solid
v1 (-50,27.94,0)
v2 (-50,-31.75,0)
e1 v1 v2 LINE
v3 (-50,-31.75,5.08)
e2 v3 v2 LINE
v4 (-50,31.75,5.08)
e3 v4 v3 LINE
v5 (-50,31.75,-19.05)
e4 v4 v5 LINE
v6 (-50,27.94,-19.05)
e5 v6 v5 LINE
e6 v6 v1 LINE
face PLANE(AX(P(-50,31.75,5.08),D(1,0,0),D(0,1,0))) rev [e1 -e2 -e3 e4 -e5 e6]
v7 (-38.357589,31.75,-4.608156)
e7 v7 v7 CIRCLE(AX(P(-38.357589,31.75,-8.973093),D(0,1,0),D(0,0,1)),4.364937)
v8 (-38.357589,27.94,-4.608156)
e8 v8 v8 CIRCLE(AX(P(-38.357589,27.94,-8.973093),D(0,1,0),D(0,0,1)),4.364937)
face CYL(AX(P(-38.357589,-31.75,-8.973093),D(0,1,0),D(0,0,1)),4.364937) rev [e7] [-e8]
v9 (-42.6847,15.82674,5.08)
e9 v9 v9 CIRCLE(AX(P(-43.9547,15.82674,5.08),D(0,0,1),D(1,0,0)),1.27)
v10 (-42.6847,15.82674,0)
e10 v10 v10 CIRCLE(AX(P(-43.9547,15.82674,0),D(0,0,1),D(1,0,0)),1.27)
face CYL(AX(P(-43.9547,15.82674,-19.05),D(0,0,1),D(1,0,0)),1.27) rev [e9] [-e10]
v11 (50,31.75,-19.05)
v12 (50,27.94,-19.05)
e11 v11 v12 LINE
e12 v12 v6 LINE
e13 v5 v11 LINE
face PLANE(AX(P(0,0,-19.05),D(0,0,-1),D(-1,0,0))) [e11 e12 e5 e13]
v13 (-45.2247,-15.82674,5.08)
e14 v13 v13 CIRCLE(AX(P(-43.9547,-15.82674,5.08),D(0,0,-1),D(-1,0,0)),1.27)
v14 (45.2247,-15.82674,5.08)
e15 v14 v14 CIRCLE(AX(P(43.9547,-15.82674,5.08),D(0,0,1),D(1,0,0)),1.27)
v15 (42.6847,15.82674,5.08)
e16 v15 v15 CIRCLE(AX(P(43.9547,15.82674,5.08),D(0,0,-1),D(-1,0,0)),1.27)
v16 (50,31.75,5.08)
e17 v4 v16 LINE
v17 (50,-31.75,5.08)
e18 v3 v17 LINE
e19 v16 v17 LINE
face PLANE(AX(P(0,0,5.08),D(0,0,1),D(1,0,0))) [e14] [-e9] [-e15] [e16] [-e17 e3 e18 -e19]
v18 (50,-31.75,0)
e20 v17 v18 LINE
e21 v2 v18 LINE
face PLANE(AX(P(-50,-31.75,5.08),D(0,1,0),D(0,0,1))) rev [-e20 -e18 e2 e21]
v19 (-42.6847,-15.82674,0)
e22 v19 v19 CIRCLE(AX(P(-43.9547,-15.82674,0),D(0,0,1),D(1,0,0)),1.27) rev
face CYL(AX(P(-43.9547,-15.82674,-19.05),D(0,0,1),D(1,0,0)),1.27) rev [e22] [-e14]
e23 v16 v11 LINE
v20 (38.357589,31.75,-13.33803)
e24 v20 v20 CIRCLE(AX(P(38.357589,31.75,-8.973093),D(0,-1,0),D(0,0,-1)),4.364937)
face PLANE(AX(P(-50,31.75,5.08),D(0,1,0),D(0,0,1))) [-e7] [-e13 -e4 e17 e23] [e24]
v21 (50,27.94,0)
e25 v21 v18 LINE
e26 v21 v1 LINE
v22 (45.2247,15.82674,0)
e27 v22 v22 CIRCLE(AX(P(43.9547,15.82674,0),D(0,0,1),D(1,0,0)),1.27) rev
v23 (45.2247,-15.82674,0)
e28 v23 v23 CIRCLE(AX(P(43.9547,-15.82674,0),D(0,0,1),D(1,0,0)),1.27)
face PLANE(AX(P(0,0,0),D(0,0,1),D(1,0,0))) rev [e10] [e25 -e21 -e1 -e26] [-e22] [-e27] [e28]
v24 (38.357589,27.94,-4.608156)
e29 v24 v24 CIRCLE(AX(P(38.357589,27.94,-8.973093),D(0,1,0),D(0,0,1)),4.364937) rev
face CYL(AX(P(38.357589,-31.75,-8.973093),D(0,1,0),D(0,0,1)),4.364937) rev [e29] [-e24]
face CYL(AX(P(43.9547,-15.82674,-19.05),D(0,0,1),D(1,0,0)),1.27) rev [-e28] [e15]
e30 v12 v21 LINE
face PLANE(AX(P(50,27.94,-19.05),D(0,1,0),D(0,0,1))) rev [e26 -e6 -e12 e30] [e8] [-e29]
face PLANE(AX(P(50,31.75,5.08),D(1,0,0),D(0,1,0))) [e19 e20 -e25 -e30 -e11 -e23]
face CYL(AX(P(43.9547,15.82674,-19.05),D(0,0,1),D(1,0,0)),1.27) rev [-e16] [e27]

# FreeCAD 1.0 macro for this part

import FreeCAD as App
import Part
import Sketcher

V = App.Vector
Q = App.Units.Quantity


def add_polygon(sketch, points):
    """Adds a closed chain of lines whose ends are joined by coincident constraints."""
    first, n = sketch.GeometryCount, len(points)
    for a, b in zip(points, points[1:] + points[:1]):
        sketch.addGeometry(Part.LineSegment(App.Vector(*a, 0), App.Vector(*b, 0)), False)
    for i in range(n):
        sketch.addConstraint(Sketcher.Constraint("Coincident", first + i, 2, first + (i + 1) % n, 1))

doc = App.newDocument("Part")
body = doc.addObject("PartDesign::Body", "Body")

sketch1 = doc.addObject("Sketcher::SketchObject", "Sketch")
body.addObject(sketch1)
sketch1.AttachmentSupport = (doc.XY_Plane, [""])
sketch1.MapMode = "FlatFace"
add_polygon(sketch1, [(-50, 31.75), (-50, -31.75), (50, -31.75), (50, 31.75)])
sketch1.addConstraint(Sketcher.Constraint("Vertical", 0))
sketch1.addConstraint(Sketcher.Constraint("Horizontal", 1))
sketch1.addConstraint(Sketcher.Constraint("Vertical", 2))
sketch1.addConstraint(Sketcher.Constraint("Horizontal", 3))
sketch1.addConstraint(Sketcher.Constraint("Symmetric", 0, 2, 2, 2, -1, 1))
sketch1.addConstraint(Sketcher.Constraint("DistanceY", 0, 2, 0, 1, Q("2.5 in")))
sketch1.addConstraint(Sketcher.Constraint("DistanceX", 1, 1, 1, 2, 100.0))
pad1 = doc.addObject("PartDesign::Pad", "Pad")
body.addObject(pad1)
pad1.Profile = sketch1
pad1.Length = Q("0.2 in")

sketch2 = doc.addObject("Sketcher::SketchObject", "Sketch001")
body.addObject(sketch2)
sketch2.AttachmentSupport = (doc.XY_Plane, [""])
sketch2.MapMode = "FlatFace"
add_polygon(sketch2, [(50, 31.75), (50, 27.94), (-50, 27.94), (-50, 31.75)])
sketch2.addConstraint(Sketcher.Constraint("Vertical", 0))
sketch2.addConstraint(Sketcher.Constraint("Horizontal", 1))
sketch2.addConstraint(Sketcher.Constraint("Vertical", 2))
sketch2.addConstraint(Sketcher.Constraint("Horizontal", 3))
sketch2.addConstraint(Sketcher.Constraint("DistanceY", 0, 2, 0, 1, Q("0.15 in")))
sketch2.addConstraint(Sketcher.Constraint("DistanceY", -1, 1, 0, 2, Q("1.1 in")))
sketch2.addConstraint(Sketcher.Constraint("DistanceX", 1, 2, 1, 1, 100.0))
sketch2.addConstraint(Sketcher.Constraint("DistanceX", -1, 1, 0, 2, 50.0))
pad2 = doc.addObject("PartDesign::Pad", "Pad001")
body.addObject(pad2)
pad2.Profile = sketch2
pad2.Length = Q("0.75 in")
pad2.Reversed = True

sketch3 = doc.addObject("Sketcher::SketchObject", "Sketch002")
body.addObject(sketch3)
sketch3.AttachmentSupport = (doc.XZ_Plane, [""])
sketch3.MapMode = "FlatFace"
sketch3.AttachmentOffset = App.Placement(V(0, 0, -1.25 * 25.4), App.Rotation())
sketch3.addGeometry(Part.Circle(V(-38.357589, -8.973093, 0), V(0, 0, 1), 4.364937), False)
sketch3.addGeometry(Part.Circle(V(38.357589, -8.973093, 0), V(0, 0, 1), 4.364937), False)
sketch3.addConstraint(Sketcher.Constraint("Equal", 0, 1))
sketch3.addConstraint(Sketcher.Constraint("Symmetric", 0, 3, 1, 3, -2))
sketch3.addConstraint(Sketcher.Constraint("Diameter", 0, 8.729874))
sketch3.addConstraint(Sketcher.Constraint("DistanceX", 0, 3, -1, 1, 38.357589))
sketch3.addConstraint(Sketcher.Constraint("DistanceY", 0, 3, -1, 1, 8.973093))
pocket1 = doc.addObject("PartDesign::Pocket", "Pocket")
body.addObject(pocket1)
pocket1.Profile = sketch3
pocket1.Type = "ThroughAll"
pocket1.Reversed = True

sketch4 = doc.addObject("Sketcher::SketchObject", "Sketch003")
body.addObject(sketch4)
sketch4.AttachmentSupport = (doc.XY_Plane, [""])
sketch4.MapMode = "FlatFace"
sketch4.AttachmentOffset = App.Placement(V(0, 0, 0.2 * 25.4), App.Rotation())
sketch4.addGeometry(Part.Circle(V(-43.9547, 15.82674, 0), V(0, 0, 1), 1.27), False)
sketch4.addGeometry(Part.Circle(V(-43.9547, -15.82674, 0), V(0, 0, 1), 1.27), False)
sketch4.addGeometry(Part.Circle(V(43.9547, -15.82674, 0), V(0, 0, 1), 1.27), False)
sketch4.addGeometry(Part.Circle(V(43.9547, 15.82674, 0), V(0, 0, 1), 1.27), False)
sketch4.addConstraint(Sketcher.Constraint("Equal", 0, 1))
sketch4.addConstraint(Sketcher.Constraint("Equal", 1, 2))
sketch4.addConstraint(Sketcher.Constraint("Equal", 2, 3))
sketch4.addConstraint(Sketcher.Constraint("Symmetric", 0, 3, 2, 3, -1, 1))
sketch4.addConstraint(Sketcher.Constraint("Symmetric", 1, 3, 3, 3, -1, 1))
sketch4.addConstraint(Sketcher.Constraint("Symmetric", 1, 3, 2, 3, -2))
sketch4.addConstraint(Sketcher.Constraint("Diameter", 0, Q("0.1 in")))
sketch4.addConstraint(Sketcher.Constraint("DistanceX", 1, 3, 2, 3, Q("3.461 in")))
sketch4.addConstraint(Sketcher.Constraint("DistanceY", -1, 1, 0, 3, Q("0.6231 in")))
pocket2 = doc.addObject("PartDesign::Pocket", "Pocket001")
body.addObject(pocket2)
pocket2.Profile = sketch4
pocket2.Type = "ThroughAll"

doc.recompute()
